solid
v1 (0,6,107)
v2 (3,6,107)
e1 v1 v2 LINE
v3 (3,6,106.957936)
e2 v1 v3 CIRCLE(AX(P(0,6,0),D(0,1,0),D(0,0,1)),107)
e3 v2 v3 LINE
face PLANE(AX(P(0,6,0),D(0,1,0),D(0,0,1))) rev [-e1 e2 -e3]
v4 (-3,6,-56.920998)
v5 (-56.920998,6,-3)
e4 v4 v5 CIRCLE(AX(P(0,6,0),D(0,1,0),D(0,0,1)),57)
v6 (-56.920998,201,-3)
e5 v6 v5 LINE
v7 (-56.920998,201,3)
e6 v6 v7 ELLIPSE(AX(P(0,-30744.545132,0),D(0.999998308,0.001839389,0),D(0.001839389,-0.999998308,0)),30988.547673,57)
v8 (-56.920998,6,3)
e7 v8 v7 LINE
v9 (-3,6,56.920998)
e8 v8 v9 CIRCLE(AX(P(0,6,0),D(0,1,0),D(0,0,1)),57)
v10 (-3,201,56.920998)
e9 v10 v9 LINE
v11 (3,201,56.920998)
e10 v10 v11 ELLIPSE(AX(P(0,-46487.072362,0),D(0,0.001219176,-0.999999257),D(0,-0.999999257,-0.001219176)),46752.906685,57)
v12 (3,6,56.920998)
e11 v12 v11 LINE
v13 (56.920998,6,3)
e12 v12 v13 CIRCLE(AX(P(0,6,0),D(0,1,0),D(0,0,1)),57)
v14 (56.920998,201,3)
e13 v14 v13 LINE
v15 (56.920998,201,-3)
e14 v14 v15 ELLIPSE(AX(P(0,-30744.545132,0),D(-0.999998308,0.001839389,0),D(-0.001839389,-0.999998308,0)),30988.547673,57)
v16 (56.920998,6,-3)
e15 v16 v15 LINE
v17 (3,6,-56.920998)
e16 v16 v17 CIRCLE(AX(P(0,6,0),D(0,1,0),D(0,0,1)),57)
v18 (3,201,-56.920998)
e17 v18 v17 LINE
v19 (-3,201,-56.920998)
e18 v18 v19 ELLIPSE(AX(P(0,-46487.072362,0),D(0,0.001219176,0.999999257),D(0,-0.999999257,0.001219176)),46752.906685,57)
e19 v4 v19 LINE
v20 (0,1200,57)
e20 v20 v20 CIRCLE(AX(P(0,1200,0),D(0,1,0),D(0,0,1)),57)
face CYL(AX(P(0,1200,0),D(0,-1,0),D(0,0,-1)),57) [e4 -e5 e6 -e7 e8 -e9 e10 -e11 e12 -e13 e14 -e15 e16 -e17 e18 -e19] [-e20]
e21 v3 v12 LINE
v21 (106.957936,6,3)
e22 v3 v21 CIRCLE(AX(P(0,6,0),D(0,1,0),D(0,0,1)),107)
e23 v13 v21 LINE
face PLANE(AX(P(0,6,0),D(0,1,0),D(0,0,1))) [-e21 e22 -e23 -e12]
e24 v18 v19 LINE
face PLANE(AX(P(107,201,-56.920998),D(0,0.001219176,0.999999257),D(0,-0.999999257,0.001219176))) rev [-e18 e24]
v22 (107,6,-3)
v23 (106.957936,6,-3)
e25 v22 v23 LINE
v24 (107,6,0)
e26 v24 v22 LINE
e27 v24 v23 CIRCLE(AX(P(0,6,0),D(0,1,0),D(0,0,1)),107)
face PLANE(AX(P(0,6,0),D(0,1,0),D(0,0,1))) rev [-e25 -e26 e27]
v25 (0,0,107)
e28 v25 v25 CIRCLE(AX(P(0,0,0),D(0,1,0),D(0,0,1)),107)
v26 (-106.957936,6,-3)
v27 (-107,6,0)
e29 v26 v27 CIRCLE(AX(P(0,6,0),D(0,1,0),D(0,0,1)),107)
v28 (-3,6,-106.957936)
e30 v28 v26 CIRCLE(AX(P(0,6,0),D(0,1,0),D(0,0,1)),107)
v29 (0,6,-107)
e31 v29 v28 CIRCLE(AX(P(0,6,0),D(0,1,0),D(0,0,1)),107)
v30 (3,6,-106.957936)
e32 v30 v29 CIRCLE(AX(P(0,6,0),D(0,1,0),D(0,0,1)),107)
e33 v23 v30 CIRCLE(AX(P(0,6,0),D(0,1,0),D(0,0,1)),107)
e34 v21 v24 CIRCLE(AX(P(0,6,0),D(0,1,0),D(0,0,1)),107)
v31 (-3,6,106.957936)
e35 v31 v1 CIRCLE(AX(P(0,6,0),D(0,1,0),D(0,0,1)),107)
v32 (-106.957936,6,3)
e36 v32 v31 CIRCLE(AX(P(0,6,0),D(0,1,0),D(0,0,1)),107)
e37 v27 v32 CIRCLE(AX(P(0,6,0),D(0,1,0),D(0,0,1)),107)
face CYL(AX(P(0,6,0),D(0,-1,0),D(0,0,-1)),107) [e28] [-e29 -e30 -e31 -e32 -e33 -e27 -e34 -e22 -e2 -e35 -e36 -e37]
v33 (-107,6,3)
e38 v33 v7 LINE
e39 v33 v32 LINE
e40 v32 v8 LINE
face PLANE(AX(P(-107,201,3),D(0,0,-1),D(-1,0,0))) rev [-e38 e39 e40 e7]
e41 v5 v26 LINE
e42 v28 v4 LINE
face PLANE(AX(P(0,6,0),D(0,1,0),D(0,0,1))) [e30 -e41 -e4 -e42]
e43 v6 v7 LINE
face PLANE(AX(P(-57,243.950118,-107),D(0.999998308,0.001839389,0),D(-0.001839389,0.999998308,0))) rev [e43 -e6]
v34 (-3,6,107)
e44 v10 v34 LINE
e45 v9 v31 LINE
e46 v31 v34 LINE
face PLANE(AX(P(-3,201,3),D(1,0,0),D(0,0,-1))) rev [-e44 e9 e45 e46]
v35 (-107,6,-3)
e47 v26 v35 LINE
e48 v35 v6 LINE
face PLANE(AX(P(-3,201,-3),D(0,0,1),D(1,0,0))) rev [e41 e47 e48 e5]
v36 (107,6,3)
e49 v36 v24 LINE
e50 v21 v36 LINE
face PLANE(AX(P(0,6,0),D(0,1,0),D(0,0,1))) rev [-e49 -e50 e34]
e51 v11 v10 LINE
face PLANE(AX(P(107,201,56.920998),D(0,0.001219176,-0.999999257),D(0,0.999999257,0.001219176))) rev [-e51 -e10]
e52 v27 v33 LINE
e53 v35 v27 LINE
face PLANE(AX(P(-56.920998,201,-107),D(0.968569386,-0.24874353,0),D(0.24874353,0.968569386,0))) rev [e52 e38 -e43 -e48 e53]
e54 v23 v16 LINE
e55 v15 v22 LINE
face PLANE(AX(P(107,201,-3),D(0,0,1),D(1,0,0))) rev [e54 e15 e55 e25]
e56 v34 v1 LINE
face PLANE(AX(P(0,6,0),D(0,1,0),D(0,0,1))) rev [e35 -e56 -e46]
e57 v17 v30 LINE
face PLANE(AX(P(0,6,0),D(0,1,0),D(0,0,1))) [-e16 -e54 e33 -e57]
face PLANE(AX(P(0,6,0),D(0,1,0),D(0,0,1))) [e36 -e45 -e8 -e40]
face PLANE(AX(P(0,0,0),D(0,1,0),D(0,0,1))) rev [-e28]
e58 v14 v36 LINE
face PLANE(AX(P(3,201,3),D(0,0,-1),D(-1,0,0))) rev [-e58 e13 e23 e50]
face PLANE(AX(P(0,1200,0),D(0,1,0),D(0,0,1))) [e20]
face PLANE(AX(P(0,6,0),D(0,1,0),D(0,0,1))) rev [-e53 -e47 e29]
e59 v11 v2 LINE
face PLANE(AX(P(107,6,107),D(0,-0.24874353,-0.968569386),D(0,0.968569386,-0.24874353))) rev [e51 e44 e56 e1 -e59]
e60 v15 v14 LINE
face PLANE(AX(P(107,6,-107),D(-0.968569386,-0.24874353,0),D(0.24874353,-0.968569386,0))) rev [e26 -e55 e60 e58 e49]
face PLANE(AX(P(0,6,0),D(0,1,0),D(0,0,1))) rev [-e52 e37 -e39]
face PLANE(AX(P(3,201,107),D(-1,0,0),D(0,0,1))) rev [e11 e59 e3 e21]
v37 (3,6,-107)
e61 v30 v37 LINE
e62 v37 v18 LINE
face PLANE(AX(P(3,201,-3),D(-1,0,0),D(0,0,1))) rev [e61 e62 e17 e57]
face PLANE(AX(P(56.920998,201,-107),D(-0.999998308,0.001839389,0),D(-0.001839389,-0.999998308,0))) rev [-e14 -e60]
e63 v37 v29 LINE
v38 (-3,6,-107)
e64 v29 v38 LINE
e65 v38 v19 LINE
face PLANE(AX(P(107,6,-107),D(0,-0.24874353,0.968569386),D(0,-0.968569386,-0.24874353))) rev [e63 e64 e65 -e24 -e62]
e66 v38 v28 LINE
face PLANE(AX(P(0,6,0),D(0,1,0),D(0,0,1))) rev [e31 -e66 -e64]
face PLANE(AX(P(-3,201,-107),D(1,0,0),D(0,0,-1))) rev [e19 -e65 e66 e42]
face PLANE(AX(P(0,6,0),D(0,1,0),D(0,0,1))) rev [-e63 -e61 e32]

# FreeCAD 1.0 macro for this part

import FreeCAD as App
import Part
import Sketcher

V = App.Vector
Q = App.Units.Quantity


def add_polygon(sketch, points):
    """Adds a closed chain of lines whose ends are joined by coincident constraints."""
    first, n = sketch.GeometryCount, len(points)
    for a, b in zip(points, points[1:] + points[:1]):
        sketch.addGeometry(Part.LineSegment(App.Vector(*a, 0), App.Vector(*b, 0)), False)
    for i in range(n):
        sketch.addConstraint(Sketcher.Constraint("Coincident", first + i, 2, first + (i + 1) % n, 1))

doc = App.newDocument("Part")
body = doc.addObject("PartDesign::Body", "Body")

# Sketch on XZ plane
sketch1 = body.newObject("Sketcher::SketchObject", "Sketch")
sketch1.AttachmentSupport = (doc.getObject("XZ_Plane"), [""])
sketch1.MapMode = "FlatFace"
sketch1.addGeometry(Part.Circle(V(0, 0, 0), V(0, 0, 1), 107), False)
sketch1.addConstraint(Sketcher.Constraint("Coincident", 0, 3, -1, 1))
sketch1.addConstraint(Sketcher.Constraint("Diameter", 0, Q("214 mm")))
pad1 = body.newObject("PartDesign::Pad", "Pad")
pad1.Profile = sketch1
pad1.Length = 6
pad1.Reversed = True

# Sketch on XZ plane
sketch2 = body.newObject("Sketcher::SketchObject", "Sketch001")
sketch2.AttachmentSupport = (doc.getObject("XZ_Plane"), [""])
sketch2.MapMode = "FlatFace"
sketch2.AttachmentOffset = App.Placement(V(0, 0, -6), App.Rotation())
sketch2.addGeometry(Part.Circle(V(0, 0, 0), V(0, 0, 1), 57), False)
sketch2.addConstraint(Sketcher.Constraint("Coincident", 0, 3, -1, 1))
sketch2.addConstraint(Sketcher.Constraint("Diameter", 0, Q("114 mm")))
pad2 = body.newObject("PartDesign::Pad", "Pad001")
pad2.Profile = sketch2
pad2.Length = 1194
pad2.Reversed = True

# Sketch on XZ plane
sketch3 = body.newObject("Sketcher::SketchObject", "Sketch002")
sketch3.AttachmentSupport = (doc.getObject("XZ_Plane"), [""])
sketch3.MapMode = "FlatFace"
sketch3.AttachmentOffset = App.Placement(V(0, 0, -6), App.Rotation())
add_polygon(sketch3, [(-107, 3), (-3, 3), (-3, 107), (3, 107), (3, 3), (107, 3), (107, -3), (3, -3), (3, -107), (-3, -107), (-3, -3), (-107, -3)])  # lines 0-11
sketch3.addConstraint(Sketcher.Constraint("Horizontal", 0))
sketch3.addConstraint(Sketcher.Constraint("Vertical", 1))
sketch3.addConstraint(Sketcher.Constraint("Horizontal", 2))
sketch3.addConstraint(Sketcher.Constraint("Vertical", 3))
sketch3.addConstraint(Sketcher.Constraint("Horizontal", 4))
sketch3.addConstraint(Sketcher.Constraint("Vertical", 5))
sketch3.addConstraint(Sketcher.Constraint("Horizontal", 6))
sketch3.addConstraint(Sketcher.Constraint("Vertical", 7))
sketch3.addConstraint(Sketcher.Constraint("Horizontal", 8))
sketch3.addConstraint(Sketcher.Constraint("Vertical", 9))
sketch3.addConstraint(Sketcher.Constraint("Horizontal", 10))
sketch3.addConstraint(Sketcher.Constraint("Vertical", 11))
sketch3.addConstraint(Sketcher.Constraint("Symmetric", 0, 2, 6, 2, -1, 1))
sketch3.addConstraint(Sketcher.Constraint("Symmetric", 2, 2, 8, 2, -1, 1))
sketch3.addConstraint(Sketcher.Constraint("Symmetric", 4, 2, 10, 2, -1, 1))
sketch3.addConstraint(Sketcher.Constraint("Symmetric", 0, 2, 3, 2, -2))
sketch3.addConstraint(Sketcher.Constraint("Equal", 10, 1))
sketch3.addConstraint(Sketcher.Constraint("Equal", 8, 5))
sketch3.addConstraint(Sketcher.Constraint("DistanceX", 0, 1, 0, 2, Q("104 mm")))
sketch3.addConstraint(Sketcher.Constraint("DistanceX", 2, 1, 2, 2, Q("6 mm")))
pad3 = body.newObject("PartDesign::Pad", "Pad002")
pad3.Profile = sketch3
pad3.Length = 195
pad3.Reversed = True

# Sketch on XY plane
sketch4 = body.newObject("Sketcher::SketchObject", "Sketch003")
sketch4.AttachmentSupport = (doc.getObject("XY_Plane"), [""])
sketch4.MapMode = "FlatFace"
sketch4.AttachmentOffset = App.Placement(V(0, 0, 3), App.Rotation())
add_polygon(sketch4, [(-107, 6), (-56.920998, 201), (-57, 243.950118), (-153.843463, 243.950118), (-153.843463, 6)])  # lines 0-4
add_polygon(sketch4, [(56.920998, 201), (107, 6), (157.678532, 6), (157.678532, 243.950118), (57, 243.950118)])  # lines 5-9
sketch4.addConstraint(Sketcher.Constraint("Horizontal", 2))
sketch4.addConstraint(Sketcher.Constraint("Vertical", 3))
sketch4.addConstraint(Sketcher.Constraint("Horizontal", 4))
sketch4.addConstraint(Sketcher.Constraint("Horizontal", 6))
sketch4.addConstraint(Sketcher.Constraint("Vertical", 7))
sketch4.addConstraint(Sketcher.Constraint("Horizontal", 8))
sketch4.addConstraint(Sketcher.Constraint("Symmetric", 4, 2, 5, 2, -2))
sketch4.addConstraint(Sketcher.Constraint("Symmetric", 1, 2, 8, 2, -2))
sketch4.addConstraint(Sketcher.Constraint("Symmetric", 0, 2, 9, 2, -2))
sketch4.addConstraint(Sketcher.Constraint("DistanceY", -1, 1, 0, 2, Q("201 mm")))
sketch4.addConstraint(Sketcher.Constraint("DistanceX", 1, 2, -1, 1, Q("57 mm")))
sketch4.addConstraint(Sketcher.Constraint("DistanceY", -1, 1, 3, 2, Q("6 mm")))
sketch4.addConstraint(Sketcher.Constraint("DistanceX", 4, 2, -1, 1, Q("107 mm")))
sketch4.addConstraint(Sketcher.Constraint("DistanceY", 3, 2, 3, 1, Q("237.950118 mm")))
sketch4.addConstraint(Sketcher.Constraint("Distance", 0, Q("201.327858 mm")))
sketch4.addConstraint(Sketcher.Constraint("DistanceX", 2, 2, 2, 1, Q("96.843463 mm")))
sketch4.addConstraint(Sketcher.Constraint("DistanceX", 6, 1, 6, 2, Q("50.678532 mm")))
pocket1 = body.newObject("PartDesign::Pocket", "Pocket")
pocket1.Profile = sketch4
pocket1.Type = "ThroughAll"

# Sketch on YZ plane
sketch5 = body.newObject("Sketcher::SketchObject", "Sketch004")
sketch5.AttachmentSupport = (doc.getObject("YZ_Plane"), [""])
sketch5.MapMode = "FlatFace"
sketch5.AttachmentOffset = App.Placement(V(0, 0, -3), App.Rotation())
add_polygon(sketch5, [(6, -107), (201, -56.920998), (265.799576, -57), (265.799576, -234.35289), (6, -234.35289)])  # lines 0-4
add_polygon(sketch5, [(201, 56.920998), (6, 107), (6, 191.443206), (265.799576, 191.443206), (265.799576, 57)])  # lines 5-9
sketch5.addConstraint(Sketcher.Constraint("Vertical", 2))
sketch5.addConstraint(Sketcher.Constraint("Horizontal", 3))
sketch5.addConstraint(Sketcher.Constraint("Vertical", 4))
sketch5.addConstraint(Sketcher.Constraint("Vertical", 6))
sketch5.addConstraint(Sketcher.Constraint("Horizontal", 7))
sketch5.addConstraint(Sketcher.Constraint("Vertical", 8))
sketch5.addConstraint(Sketcher.Constraint("Symmetric", 4, 2, 5, 2, -1))
sketch5.addConstraint(Sketcher.Constraint("Symmetric", 1, 2, 8, 2, -1))
sketch5.addConstraint(Sketcher.Constraint("Symmetric", 0, 2, 9, 2, -1))
sketch5.addConstraint(Sketcher.Constraint("DistanceX", -1, 1, 0, 2, Q("201 mm")))
sketch5.addConstraint(Sketcher.Constraint("DistanceY", 1, 2, -1, 1, Q("57 mm")))
sketch5.addConstraint(Sketcher.Constraint("DistanceX", -1, 1, 3, 2, Q("6 mm")))
sketch5.addConstraint(Sketcher.Constraint("DistanceY", 4, 2, -1, 1, Q("107 mm")))
sketch5.addConstraint(Sketcher.Constraint("DistanceY", 2, 2, 2, 1, Q("177.35289 mm")))
sketch5.addConstraint(Sketcher.Constraint("Distance", 0, Q("201.327858 mm")))
sketch5.addConstraint(Sketcher.Constraint("DistanceX", 3, 2, 3, 1, Q("259.799576 mm")))
sketch5.addConstraint(Sketcher.Constraint("DistanceY", 6, 1, 6, 2, Q("84.443206 mm")))
pocket2 = body.newObject("PartDesign::Pocket", "Pocket001")
pocket2.Profile = sketch5
pocket2.Type = "ThroughAll"
pocket2.Reversed = True

doc.recompute()
